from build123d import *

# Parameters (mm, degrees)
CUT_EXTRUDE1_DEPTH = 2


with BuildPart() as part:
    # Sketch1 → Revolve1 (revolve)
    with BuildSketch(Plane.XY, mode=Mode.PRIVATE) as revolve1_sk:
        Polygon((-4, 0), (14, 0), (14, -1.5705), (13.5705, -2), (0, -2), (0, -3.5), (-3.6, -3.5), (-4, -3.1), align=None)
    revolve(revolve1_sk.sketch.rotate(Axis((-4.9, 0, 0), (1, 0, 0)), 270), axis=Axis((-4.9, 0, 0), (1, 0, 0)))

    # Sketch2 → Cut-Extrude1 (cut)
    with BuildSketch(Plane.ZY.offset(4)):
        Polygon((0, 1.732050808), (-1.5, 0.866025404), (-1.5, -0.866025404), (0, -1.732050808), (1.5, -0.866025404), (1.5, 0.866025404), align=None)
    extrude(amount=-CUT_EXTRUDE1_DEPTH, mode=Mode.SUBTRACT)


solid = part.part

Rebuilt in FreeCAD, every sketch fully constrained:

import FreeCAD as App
import Part
import Sketcher

V = App.Vector
Q = App.Units.Quantity

doc = App.newDocument("Part")
body = doc.addObject("PartDesign::Body", "Body")

# Sketch on XY plane
sketch1 = doc.addObject("Sketcher::SketchObject", "Sketch")
body.addObject(sketch1)
sketch1.AttachmentSupport = (doc.XY_Plane, [""])
sketch1.MapMode = "FlatFace"
sketch1.addGeometry([
    Part.LineSegment(V(14, 0, 0), V(-4, 0, 0)),  # 0
    Part.LineSegment(V(-4, 0, 0), V(-4, -3.1, 0)),  # 1
    Part.LineSegment(V(-4, -3.1, 0), V(-3.6, -3.5, 0)),  # 2
    Part.LineSegment(V(-3.6, -3.5, 0), V(0, -3.5, 0)),  # 3
    Part.LineSegment(V(0, -3.5, 0), V(0, -2, 0)),  # 4
    Part.LineSegment(V(0, -2, 0), V(13.5705, -2, 0)),  # 5
    Part.LineSegment(V(13.5705, -2, 0), V(14, -1.5705, 0)),  # 6
    Part.LineSegment(V(14, -1.5705, 0), V(14, 0, 0)),  # 7
], False)
sketch1.addConstraint([
    Sketcher.Constraint("Coincident", 0, 2, 1, 1),
    Sketcher.Constraint("Coincident", 1, 2, 2, 1),
    Sketcher.Constraint("Coincident", 2, 2, 3, 1),
    Sketcher.Constraint("Coincident", 3, 2, 4, 1),
    Sketcher.Constraint("Coincident", 4, 2, 5, 1),
    Sketcher.Constraint("Coincident", 5, 2, 6, 1),
    Sketcher.Constraint("Coincident", 6, 2, 7, 1),
    Sketcher.Constraint("Coincident", 7, 2, 0, 1),
    Sketcher.Constraint("Horizontal", 0),
    Sketcher.Constraint("Vertical", 1),
    Sketcher.Constraint("Horizontal", 3),
    Sketcher.Constraint("Vertical", 4),
    Sketcher.Constraint("Horizontal", 5),
    Sketcher.Constraint("Vertical", 7),
    Sketcher.Constraint("PointOnObject", 0, 2, -1),
    Sketcher.Constraint("PointOnObject", 3, 2, -2),
    Sketcher.Constraint("Perpendicular", 2, 6),
    Sketcher.Constraint("DistanceX", 0, 2, 0, 1, Q("18 mm")),
    Sketcher.Constraint("Angle", 2, Q("-45 deg")),
    Sketcher.Constraint("DistanceX", 3, 1, 3, 2, Q("3.6 mm")),
    Sketcher.Constraint("DistanceY", 1, 2, 1, 1, Q("3.1 mm")),
    Sketcher.Constraint("DistanceY", 4, 1, 4, 2, Q("1.5 mm")),
    Sketcher.Constraint("DistanceX", 0, 2, -1, 1, Q("4 mm")),
    Sketcher.Constraint("DistanceX", 5, 1, 5, 2, Q("13.5705 mm")),
])
revolution = doc.addObject("PartDesign::Revolution", "Revolution")
body.addObject(revolution)
revolution.Profile = sketch1
revolution.ReferenceAxis = (sketch1, ["H_Axis"])
revolution.Angle = 360

# Sketch on YZ plane
sketch2 = doc.addObject("Sketcher::SketchObject", "Sketch001")
body.addObject(sketch2)
sketch2.AttachmentSupport = (doc.YZ_Plane, [""])
sketch2.MapMode = "FlatFace"
sketch2.AttachmentOffset = App.Placement(V(0, 0, -4), App.Rotation())
sketch2.addGeometry([
    Part.LineSegment(V(1.732051, 0, 0), V(0.866025, -1.5, 0)),  # 0
    Part.LineSegment(V(0.866025, -1.5, 0), V(-0.866025, -1.5, 0)),  # 1
    Part.LineSegment(V(-0.866025, -1.5, 0), V(-1.732051, 0, 0)),  # 2
    Part.LineSegment(V(-1.732051, 0, 0), V(-0.866025, 1.5, 0)),  # 3
    Part.LineSegment(V(-0.866025, 1.5, 0), V(0.866025, 1.5, 0)),  # 4
    Part.LineSegment(V(0.866025, 1.5, 0), V(1.732051, 0, 0)),  # 5
], False)
sketch2.addConstraint([
    Sketcher.Constraint("Coincident", 0, 2, 1, 1),
    Sketcher.Constraint("Coincident", 1, 2, 2, 1),
    Sketcher.Constraint("Coincident", 2, 2, 3, 1),
    Sketcher.Constraint("Coincident", 3, 2, 4, 1),
    Sketcher.Constraint("Coincident", 4, 2, 5, 1),
    Sketcher.Constraint("Coincident", 5, 2, 0, 1),
    Sketcher.Constraint("Horizontal", 1),
    Sketcher.Constraint("Horizontal", 4),
    Sketcher.Constraint("Symmetric", 0, 2, 3, 2, -1, 1),
    Sketcher.Constraint("Symmetric", 2, 2, 5, 2, -1, 1),
    Sketcher.Constraint("PointOnObject", 2, 2, -1),
    Sketcher.Constraint("Parallel", 2, 5),
    Sketcher.Constraint("Vertical", 1, 2, 3, 2),
    Sketcher.Constraint("Angle", 0, Q("-120 deg")),
    Sketcher.Constraint("DistanceY", 1, 2, 3, 2, Q("3 mm")),
    Sketcher.Constraint("DistanceX", 1, 2, 1, 1, Q("1.732051 mm")),
])
pocket1 = doc.addObject("PartDesign::Pocket", "Pocket")
body.addObject(pocket1)
pocket1.Profile = sketch2
pocket1.Length = 2
pocket1.Reversed = True

doc.recompute()
